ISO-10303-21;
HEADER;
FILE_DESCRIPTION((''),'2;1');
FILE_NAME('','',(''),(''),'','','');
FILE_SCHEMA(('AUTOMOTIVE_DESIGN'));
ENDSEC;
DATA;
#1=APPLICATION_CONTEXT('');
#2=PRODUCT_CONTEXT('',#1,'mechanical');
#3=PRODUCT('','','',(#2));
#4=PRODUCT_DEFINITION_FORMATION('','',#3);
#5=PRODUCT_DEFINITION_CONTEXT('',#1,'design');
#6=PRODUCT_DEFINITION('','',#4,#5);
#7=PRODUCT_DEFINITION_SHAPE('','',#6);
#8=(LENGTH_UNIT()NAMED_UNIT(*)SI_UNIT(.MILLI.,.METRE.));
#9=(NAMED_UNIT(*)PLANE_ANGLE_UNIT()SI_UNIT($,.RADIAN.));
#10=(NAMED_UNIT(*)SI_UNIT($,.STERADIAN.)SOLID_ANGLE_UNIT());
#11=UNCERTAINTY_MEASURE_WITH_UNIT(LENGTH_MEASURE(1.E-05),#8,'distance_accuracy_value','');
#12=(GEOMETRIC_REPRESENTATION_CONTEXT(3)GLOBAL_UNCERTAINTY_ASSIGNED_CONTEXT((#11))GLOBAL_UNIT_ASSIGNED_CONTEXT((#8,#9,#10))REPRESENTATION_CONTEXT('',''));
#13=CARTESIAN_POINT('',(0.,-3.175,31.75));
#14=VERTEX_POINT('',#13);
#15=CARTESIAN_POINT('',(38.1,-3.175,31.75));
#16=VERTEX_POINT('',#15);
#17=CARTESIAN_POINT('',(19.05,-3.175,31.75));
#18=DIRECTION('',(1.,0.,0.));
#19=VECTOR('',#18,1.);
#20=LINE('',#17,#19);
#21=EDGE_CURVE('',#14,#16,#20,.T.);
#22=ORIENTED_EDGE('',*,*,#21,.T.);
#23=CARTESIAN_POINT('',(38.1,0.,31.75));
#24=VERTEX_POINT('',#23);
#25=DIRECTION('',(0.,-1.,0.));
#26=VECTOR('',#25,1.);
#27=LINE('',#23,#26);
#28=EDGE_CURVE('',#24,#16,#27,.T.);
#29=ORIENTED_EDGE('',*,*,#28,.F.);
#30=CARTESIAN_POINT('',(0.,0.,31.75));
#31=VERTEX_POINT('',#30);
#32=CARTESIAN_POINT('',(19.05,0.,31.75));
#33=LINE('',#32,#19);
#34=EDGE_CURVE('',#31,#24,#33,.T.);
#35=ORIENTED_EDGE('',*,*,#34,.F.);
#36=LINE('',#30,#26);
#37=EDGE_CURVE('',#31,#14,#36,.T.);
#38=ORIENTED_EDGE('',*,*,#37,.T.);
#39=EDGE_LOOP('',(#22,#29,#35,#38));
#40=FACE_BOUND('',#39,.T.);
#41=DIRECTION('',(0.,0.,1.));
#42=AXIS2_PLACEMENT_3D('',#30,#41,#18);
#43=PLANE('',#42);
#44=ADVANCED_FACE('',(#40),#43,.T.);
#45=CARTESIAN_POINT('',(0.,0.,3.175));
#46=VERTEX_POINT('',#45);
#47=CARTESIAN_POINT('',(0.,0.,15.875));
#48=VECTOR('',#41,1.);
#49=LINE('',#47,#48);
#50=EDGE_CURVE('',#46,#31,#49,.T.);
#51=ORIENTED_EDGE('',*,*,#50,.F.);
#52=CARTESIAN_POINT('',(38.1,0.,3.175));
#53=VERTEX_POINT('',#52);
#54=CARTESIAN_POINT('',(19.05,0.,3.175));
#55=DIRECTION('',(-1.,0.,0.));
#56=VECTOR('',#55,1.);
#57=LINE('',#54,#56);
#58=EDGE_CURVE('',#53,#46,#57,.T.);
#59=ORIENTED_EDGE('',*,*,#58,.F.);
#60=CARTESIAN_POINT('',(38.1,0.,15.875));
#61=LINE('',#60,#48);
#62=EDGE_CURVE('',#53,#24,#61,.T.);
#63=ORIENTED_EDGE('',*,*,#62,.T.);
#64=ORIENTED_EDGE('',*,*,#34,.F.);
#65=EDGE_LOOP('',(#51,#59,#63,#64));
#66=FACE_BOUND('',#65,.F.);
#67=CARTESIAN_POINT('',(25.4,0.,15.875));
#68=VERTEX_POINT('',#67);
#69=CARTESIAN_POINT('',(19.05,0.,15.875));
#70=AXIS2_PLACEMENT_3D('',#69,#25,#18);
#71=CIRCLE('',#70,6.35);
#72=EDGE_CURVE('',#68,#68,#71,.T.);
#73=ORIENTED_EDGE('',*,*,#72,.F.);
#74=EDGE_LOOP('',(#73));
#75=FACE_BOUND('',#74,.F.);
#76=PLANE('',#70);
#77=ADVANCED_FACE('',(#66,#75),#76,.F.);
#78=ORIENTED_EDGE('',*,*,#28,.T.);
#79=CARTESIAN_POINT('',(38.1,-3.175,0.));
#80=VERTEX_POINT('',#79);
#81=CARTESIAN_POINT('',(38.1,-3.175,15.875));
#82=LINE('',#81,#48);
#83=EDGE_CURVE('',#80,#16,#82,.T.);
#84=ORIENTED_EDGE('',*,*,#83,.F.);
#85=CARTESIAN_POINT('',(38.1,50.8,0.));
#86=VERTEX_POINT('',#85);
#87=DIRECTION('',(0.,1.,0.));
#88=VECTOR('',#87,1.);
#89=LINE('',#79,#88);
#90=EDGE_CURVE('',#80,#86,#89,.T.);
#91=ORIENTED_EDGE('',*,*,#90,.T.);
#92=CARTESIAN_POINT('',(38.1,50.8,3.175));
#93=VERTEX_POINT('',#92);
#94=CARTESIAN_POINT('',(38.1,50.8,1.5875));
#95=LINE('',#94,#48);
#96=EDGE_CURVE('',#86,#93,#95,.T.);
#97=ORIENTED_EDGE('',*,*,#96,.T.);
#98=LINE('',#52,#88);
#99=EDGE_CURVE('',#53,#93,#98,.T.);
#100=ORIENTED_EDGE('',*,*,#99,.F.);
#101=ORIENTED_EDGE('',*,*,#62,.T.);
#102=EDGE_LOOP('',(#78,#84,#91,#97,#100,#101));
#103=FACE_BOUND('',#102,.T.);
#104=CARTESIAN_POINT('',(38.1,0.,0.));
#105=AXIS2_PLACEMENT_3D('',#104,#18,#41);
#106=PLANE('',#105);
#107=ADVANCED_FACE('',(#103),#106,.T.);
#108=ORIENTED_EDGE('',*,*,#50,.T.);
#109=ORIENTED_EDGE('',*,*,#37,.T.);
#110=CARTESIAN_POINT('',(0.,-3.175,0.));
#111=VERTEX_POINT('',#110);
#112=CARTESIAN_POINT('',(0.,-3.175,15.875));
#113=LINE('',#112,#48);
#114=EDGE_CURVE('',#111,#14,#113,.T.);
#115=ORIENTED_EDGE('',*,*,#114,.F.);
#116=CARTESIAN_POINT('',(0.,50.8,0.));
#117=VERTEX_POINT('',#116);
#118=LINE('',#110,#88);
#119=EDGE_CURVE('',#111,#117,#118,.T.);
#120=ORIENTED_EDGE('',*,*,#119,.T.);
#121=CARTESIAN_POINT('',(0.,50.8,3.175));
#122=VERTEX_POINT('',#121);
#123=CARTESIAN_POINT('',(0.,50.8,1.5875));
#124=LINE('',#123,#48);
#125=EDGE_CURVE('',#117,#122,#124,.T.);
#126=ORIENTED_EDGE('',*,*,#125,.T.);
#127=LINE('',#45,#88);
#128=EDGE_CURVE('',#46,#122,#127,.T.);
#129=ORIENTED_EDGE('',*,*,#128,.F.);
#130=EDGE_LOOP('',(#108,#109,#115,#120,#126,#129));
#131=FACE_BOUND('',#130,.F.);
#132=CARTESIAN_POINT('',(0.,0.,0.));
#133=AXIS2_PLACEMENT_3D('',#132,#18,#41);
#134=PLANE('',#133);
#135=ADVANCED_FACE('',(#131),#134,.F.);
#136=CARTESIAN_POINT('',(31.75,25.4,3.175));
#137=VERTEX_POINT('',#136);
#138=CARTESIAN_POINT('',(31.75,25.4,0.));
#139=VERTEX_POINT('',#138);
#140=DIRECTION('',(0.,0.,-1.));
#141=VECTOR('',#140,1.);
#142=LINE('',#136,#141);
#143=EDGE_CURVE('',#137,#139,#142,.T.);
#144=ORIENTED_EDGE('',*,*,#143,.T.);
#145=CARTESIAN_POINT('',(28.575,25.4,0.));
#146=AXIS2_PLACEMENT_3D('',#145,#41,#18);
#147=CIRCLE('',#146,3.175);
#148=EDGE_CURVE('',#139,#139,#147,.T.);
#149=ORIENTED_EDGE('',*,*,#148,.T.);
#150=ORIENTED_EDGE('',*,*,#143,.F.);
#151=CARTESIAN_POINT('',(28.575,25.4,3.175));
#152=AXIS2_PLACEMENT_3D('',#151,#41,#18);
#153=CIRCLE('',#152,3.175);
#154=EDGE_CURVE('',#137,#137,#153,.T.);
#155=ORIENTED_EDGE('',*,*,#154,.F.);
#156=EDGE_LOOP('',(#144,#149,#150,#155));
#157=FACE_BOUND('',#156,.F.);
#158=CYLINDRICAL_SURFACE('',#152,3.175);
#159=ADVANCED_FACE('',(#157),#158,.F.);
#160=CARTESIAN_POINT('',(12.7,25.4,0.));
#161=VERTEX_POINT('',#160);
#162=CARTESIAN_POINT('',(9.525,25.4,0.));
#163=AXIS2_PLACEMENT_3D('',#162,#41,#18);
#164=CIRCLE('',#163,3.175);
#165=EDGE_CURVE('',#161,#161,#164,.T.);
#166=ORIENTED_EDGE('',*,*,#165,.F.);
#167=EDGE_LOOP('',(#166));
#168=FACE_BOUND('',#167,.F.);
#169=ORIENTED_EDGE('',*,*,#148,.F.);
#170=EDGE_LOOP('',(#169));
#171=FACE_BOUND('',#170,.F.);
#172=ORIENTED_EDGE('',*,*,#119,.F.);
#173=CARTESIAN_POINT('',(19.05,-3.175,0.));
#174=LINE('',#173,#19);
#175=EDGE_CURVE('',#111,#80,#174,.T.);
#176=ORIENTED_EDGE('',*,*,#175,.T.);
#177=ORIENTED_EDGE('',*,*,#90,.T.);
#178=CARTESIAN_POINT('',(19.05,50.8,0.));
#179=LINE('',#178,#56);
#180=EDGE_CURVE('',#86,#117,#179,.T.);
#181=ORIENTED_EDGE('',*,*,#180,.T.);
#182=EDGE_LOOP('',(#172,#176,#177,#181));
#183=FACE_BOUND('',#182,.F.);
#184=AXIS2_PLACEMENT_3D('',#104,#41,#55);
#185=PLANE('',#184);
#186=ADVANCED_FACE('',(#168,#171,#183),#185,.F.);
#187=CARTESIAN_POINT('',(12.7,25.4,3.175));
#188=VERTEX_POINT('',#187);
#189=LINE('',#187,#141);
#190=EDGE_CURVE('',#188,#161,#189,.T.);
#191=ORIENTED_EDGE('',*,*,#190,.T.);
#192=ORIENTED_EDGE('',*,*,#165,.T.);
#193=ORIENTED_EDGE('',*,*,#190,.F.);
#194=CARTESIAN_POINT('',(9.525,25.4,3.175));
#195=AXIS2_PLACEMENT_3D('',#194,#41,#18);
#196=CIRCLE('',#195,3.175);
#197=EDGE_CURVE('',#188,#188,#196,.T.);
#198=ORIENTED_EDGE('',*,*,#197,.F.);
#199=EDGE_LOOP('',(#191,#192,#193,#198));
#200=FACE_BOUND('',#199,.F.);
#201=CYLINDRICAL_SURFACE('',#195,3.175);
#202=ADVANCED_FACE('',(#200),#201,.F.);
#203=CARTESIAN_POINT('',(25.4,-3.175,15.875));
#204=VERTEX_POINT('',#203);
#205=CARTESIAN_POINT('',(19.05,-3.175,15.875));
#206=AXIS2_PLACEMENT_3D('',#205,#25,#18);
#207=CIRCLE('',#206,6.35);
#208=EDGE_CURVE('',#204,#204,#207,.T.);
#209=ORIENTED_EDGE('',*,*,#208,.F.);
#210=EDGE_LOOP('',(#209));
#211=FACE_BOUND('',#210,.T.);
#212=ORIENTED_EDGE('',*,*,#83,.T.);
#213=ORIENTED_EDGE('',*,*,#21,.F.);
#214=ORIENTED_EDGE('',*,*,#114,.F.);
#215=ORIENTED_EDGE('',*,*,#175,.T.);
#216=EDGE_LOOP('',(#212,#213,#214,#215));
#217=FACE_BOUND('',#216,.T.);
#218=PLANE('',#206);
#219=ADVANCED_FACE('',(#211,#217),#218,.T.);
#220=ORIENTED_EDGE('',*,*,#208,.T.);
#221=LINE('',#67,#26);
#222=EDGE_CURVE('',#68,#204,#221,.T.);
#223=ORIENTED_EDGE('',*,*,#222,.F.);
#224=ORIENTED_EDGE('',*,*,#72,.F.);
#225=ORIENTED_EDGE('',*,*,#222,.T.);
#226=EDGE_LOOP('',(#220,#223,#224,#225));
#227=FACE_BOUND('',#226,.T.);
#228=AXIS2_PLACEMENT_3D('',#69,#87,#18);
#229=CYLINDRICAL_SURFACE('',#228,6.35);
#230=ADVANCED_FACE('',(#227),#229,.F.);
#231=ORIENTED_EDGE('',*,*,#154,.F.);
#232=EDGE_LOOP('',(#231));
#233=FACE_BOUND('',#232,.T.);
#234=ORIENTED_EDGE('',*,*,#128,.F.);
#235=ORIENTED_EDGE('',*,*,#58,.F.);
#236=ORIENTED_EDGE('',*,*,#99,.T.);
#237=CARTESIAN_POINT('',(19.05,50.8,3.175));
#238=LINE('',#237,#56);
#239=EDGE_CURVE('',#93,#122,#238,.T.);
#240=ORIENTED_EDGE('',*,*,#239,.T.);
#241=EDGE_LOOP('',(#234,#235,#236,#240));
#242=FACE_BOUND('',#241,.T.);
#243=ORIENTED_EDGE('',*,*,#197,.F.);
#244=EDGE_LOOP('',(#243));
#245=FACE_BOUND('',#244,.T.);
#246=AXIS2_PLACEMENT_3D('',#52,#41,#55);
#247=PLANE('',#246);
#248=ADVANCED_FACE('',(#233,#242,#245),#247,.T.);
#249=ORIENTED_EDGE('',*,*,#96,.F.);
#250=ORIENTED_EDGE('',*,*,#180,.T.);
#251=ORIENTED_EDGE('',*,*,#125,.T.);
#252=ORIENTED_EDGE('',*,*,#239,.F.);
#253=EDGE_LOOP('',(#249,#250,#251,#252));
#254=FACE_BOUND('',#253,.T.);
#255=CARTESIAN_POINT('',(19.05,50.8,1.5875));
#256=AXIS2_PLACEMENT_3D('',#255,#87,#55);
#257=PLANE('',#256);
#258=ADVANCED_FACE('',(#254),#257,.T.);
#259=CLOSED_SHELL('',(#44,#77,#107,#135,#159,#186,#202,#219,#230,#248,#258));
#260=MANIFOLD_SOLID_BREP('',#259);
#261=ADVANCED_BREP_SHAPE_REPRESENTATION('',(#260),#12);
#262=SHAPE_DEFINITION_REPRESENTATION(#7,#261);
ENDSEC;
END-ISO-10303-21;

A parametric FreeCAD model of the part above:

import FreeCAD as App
import Part
import Sketcher

V = App.Vector
Q = App.Units.Quantity

doc = App.newDocument("Part")
body = doc.addObject("PartDesign::Body", "Body")

sketch1 = doc.addObject("Sketcher::SketchObject", "Sketch")
body.addObject(sketch1)
sketch1.AttachmentSupport = (doc.XZ_Plane, [""])
sketch1.MapMode = "FlatFace"
sketch1.addGeometry(Part.LineSegment(V(0, 32, 0), V(0, 0, 0)), False)
sketch1.addGeometry(Part.LineSegment(V(0, 0, 0), V(38, 0, 0)), False)
sketch1.addGeometry(Part.LineSegment(V(38, 0, 0), V(38, 32, 0)), False)
sketch1.addGeometry(Part.LineSegment(V(38, 32, 0), V(0, 32, 0)), False)
sketch1.addGeometry(Part.Circle(V(19, 16, 0), V(0, 0, 1), 6), False)
sketch1.addConstraint(Sketcher.Constraint("Coincident", 0, 2, 1, 1))
sketch1.addConstraint(Sketcher.Constraint("Coincident", 1, 2, 2, 1))
sketch1.addConstraint(Sketcher.Constraint("Coincident", 2, 2, 3, 1))
sketch1.addConstraint(Sketcher.Constraint("Coincident", 3, 2, 0, 1))
sketch1.addConstraint(Sketcher.Constraint("Vertical", 0))
sketch1.addConstraint(Sketcher.Constraint("Horizontal", 1))
sketch1.addConstraint(Sketcher.Constraint("Vertical", 2))
sketch1.addConstraint(Sketcher.Constraint("Horizontal", 3))
sketch1.addConstraint(Sketcher.Constraint("Coincident", 0, 2, -1, 1))
sketch1.addConstraint(Sketcher.Constraint("Diameter", 4, Q("0.5 in")))
sketch1.addConstraint(Sketcher.Constraint("DistanceX", 1, 1, 1, 2, Q("1.5 in")))
sketch1.addConstraint(Sketcher.Constraint("DistanceY", 0, 2, 0, 1, Q("1.25 in")))
sketch1.addConstraint(Sketcher.Constraint("DistanceX", -1, 1, 4, 3, Q("0.75 in")))
sketch1.addConstraint(Sketcher.Constraint("DistanceY", -1, 1, 4, 3, Q("0.625 in")))
pad1 = doc.addObject("PartDesign::Pad", "Pad")
body.addObject(pad1)
pad1.Profile = sketch1
pad1.Length = Q("0.125 in")

sketch2 = doc.addObject("Sketcher::SketchObject", "Sketch001")
body.addObject(sketch2)
sketch2.AttachmentSupport = (doc.XZ_Plane, [""])
sketch2.MapMode = "FlatFace"
sketch2.addGeometry(Part.LineSegment(V(38.1, 3.2, 0), V(38.1, 0, 0)), False)
sketch2.addGeometry(Part.LineSegment(V(38.1, 0, 0), V(0, 0, 0)), False)
sketch2.addGeometry(Part.LineSegment(V(0, 0, 0), V(0, 3.2, 0)), False)
sketch2.addGeometry(Part.LineSegment(V(0, 3.2, 0), V(38.1, 3.2, 0)), False)
sketch2.addConstraint(Sketcher.Constraint("Coincident", 0, 2, 1, 1))
sketch2.addConstraint(Sketcher.Constraint("Coincident", 1, 2, 2, 1))
sketch2.addConstraint(Sketcher.Constraint("Coincident", 2, 2, 3, 1))
sketch2.addConstraint(Sketcher.Constraint("Coincident", 3, 2, 0, 1))
sketch2.addConstraint(Sketcher.Constraint("Vertical", 0))
sketch2.addConstraint(Sketcher.Constraint("Horizontal", 1))
sketch2.addConstraint(Sketcher.Constraint("Vertical", 2))
sketch2.addConstraint(Sketcher.Constraint("Horizontal", 3))
sketch2.addConstraint(Sketcher.Constraint("Coincident", 1, 2, -1, 1))
sketch2.addConstraint(Sketcher.Constraint("DistanceX", 1, 2, 1, 1, Q("1.5 in")))
sketch2.addConstraint(Sketcher.Constraint("DistanceY", 0, 2, 0, 1, Q("0.125 in")))
pad2 = doc.addObject("PartDesign::Pad", "Pad001")
body.addObject(pad2)
pad2.Profile = sketch2
pad2.Length = Q("2 in")
pad2.Reversed = True

sketch3 = doc.addObject("Sketcher::SketchObject", "Sketch002")
body.addObject(sketch3)
sketch3.AttachmentSupport = (doc.XY_Plane, [""])
sketch3.MapMode = "FlatFace"
sketch3.AttachmentOffset = App.Placement(V(0, 0, 0.125 * 25.4), App.Rotation())
sketch3.addGeometry(Part.Circle(V(28.6, 25.4, 0), V(0, 0, 1), 3.2), False)
sketch3.addGeometry(Part.Circle(V(9.5, 25.4, 0), V(0, 0, 1), 3.2), False)
sketch3.addConstraint(Sketcher.Constraint("Equal", 0, 1))
sketch3.addConstraint(Sketcher.Constraint("Horizontal", 0, 3, 1, 3))
sketch3.addConstraint(Sketcher.Constraint("Diameter", 0, Q("0.25 in")))
sketch3.addConstraint(Sketcher.Constraint("DistanceY", -1, 1, 0, 3, Q("1 in")))
sketch3.addConstraint(Sketcher.Constraint("DistanceX", 1, 3, 0, 3, Q("0.75 in")))
sketch3.addConstraint(Sketcher.Constraint("DistanceX", -1, 1, 0, 3, Q("1.125 in")))
pocket1 = doc.addObject("PartDesign::Pocket", "Pocket")
body.addObject(pocket1)
pocket1.Profile = sketch3
pocket1.Type = "ThroughAll"

doc.recompute()
